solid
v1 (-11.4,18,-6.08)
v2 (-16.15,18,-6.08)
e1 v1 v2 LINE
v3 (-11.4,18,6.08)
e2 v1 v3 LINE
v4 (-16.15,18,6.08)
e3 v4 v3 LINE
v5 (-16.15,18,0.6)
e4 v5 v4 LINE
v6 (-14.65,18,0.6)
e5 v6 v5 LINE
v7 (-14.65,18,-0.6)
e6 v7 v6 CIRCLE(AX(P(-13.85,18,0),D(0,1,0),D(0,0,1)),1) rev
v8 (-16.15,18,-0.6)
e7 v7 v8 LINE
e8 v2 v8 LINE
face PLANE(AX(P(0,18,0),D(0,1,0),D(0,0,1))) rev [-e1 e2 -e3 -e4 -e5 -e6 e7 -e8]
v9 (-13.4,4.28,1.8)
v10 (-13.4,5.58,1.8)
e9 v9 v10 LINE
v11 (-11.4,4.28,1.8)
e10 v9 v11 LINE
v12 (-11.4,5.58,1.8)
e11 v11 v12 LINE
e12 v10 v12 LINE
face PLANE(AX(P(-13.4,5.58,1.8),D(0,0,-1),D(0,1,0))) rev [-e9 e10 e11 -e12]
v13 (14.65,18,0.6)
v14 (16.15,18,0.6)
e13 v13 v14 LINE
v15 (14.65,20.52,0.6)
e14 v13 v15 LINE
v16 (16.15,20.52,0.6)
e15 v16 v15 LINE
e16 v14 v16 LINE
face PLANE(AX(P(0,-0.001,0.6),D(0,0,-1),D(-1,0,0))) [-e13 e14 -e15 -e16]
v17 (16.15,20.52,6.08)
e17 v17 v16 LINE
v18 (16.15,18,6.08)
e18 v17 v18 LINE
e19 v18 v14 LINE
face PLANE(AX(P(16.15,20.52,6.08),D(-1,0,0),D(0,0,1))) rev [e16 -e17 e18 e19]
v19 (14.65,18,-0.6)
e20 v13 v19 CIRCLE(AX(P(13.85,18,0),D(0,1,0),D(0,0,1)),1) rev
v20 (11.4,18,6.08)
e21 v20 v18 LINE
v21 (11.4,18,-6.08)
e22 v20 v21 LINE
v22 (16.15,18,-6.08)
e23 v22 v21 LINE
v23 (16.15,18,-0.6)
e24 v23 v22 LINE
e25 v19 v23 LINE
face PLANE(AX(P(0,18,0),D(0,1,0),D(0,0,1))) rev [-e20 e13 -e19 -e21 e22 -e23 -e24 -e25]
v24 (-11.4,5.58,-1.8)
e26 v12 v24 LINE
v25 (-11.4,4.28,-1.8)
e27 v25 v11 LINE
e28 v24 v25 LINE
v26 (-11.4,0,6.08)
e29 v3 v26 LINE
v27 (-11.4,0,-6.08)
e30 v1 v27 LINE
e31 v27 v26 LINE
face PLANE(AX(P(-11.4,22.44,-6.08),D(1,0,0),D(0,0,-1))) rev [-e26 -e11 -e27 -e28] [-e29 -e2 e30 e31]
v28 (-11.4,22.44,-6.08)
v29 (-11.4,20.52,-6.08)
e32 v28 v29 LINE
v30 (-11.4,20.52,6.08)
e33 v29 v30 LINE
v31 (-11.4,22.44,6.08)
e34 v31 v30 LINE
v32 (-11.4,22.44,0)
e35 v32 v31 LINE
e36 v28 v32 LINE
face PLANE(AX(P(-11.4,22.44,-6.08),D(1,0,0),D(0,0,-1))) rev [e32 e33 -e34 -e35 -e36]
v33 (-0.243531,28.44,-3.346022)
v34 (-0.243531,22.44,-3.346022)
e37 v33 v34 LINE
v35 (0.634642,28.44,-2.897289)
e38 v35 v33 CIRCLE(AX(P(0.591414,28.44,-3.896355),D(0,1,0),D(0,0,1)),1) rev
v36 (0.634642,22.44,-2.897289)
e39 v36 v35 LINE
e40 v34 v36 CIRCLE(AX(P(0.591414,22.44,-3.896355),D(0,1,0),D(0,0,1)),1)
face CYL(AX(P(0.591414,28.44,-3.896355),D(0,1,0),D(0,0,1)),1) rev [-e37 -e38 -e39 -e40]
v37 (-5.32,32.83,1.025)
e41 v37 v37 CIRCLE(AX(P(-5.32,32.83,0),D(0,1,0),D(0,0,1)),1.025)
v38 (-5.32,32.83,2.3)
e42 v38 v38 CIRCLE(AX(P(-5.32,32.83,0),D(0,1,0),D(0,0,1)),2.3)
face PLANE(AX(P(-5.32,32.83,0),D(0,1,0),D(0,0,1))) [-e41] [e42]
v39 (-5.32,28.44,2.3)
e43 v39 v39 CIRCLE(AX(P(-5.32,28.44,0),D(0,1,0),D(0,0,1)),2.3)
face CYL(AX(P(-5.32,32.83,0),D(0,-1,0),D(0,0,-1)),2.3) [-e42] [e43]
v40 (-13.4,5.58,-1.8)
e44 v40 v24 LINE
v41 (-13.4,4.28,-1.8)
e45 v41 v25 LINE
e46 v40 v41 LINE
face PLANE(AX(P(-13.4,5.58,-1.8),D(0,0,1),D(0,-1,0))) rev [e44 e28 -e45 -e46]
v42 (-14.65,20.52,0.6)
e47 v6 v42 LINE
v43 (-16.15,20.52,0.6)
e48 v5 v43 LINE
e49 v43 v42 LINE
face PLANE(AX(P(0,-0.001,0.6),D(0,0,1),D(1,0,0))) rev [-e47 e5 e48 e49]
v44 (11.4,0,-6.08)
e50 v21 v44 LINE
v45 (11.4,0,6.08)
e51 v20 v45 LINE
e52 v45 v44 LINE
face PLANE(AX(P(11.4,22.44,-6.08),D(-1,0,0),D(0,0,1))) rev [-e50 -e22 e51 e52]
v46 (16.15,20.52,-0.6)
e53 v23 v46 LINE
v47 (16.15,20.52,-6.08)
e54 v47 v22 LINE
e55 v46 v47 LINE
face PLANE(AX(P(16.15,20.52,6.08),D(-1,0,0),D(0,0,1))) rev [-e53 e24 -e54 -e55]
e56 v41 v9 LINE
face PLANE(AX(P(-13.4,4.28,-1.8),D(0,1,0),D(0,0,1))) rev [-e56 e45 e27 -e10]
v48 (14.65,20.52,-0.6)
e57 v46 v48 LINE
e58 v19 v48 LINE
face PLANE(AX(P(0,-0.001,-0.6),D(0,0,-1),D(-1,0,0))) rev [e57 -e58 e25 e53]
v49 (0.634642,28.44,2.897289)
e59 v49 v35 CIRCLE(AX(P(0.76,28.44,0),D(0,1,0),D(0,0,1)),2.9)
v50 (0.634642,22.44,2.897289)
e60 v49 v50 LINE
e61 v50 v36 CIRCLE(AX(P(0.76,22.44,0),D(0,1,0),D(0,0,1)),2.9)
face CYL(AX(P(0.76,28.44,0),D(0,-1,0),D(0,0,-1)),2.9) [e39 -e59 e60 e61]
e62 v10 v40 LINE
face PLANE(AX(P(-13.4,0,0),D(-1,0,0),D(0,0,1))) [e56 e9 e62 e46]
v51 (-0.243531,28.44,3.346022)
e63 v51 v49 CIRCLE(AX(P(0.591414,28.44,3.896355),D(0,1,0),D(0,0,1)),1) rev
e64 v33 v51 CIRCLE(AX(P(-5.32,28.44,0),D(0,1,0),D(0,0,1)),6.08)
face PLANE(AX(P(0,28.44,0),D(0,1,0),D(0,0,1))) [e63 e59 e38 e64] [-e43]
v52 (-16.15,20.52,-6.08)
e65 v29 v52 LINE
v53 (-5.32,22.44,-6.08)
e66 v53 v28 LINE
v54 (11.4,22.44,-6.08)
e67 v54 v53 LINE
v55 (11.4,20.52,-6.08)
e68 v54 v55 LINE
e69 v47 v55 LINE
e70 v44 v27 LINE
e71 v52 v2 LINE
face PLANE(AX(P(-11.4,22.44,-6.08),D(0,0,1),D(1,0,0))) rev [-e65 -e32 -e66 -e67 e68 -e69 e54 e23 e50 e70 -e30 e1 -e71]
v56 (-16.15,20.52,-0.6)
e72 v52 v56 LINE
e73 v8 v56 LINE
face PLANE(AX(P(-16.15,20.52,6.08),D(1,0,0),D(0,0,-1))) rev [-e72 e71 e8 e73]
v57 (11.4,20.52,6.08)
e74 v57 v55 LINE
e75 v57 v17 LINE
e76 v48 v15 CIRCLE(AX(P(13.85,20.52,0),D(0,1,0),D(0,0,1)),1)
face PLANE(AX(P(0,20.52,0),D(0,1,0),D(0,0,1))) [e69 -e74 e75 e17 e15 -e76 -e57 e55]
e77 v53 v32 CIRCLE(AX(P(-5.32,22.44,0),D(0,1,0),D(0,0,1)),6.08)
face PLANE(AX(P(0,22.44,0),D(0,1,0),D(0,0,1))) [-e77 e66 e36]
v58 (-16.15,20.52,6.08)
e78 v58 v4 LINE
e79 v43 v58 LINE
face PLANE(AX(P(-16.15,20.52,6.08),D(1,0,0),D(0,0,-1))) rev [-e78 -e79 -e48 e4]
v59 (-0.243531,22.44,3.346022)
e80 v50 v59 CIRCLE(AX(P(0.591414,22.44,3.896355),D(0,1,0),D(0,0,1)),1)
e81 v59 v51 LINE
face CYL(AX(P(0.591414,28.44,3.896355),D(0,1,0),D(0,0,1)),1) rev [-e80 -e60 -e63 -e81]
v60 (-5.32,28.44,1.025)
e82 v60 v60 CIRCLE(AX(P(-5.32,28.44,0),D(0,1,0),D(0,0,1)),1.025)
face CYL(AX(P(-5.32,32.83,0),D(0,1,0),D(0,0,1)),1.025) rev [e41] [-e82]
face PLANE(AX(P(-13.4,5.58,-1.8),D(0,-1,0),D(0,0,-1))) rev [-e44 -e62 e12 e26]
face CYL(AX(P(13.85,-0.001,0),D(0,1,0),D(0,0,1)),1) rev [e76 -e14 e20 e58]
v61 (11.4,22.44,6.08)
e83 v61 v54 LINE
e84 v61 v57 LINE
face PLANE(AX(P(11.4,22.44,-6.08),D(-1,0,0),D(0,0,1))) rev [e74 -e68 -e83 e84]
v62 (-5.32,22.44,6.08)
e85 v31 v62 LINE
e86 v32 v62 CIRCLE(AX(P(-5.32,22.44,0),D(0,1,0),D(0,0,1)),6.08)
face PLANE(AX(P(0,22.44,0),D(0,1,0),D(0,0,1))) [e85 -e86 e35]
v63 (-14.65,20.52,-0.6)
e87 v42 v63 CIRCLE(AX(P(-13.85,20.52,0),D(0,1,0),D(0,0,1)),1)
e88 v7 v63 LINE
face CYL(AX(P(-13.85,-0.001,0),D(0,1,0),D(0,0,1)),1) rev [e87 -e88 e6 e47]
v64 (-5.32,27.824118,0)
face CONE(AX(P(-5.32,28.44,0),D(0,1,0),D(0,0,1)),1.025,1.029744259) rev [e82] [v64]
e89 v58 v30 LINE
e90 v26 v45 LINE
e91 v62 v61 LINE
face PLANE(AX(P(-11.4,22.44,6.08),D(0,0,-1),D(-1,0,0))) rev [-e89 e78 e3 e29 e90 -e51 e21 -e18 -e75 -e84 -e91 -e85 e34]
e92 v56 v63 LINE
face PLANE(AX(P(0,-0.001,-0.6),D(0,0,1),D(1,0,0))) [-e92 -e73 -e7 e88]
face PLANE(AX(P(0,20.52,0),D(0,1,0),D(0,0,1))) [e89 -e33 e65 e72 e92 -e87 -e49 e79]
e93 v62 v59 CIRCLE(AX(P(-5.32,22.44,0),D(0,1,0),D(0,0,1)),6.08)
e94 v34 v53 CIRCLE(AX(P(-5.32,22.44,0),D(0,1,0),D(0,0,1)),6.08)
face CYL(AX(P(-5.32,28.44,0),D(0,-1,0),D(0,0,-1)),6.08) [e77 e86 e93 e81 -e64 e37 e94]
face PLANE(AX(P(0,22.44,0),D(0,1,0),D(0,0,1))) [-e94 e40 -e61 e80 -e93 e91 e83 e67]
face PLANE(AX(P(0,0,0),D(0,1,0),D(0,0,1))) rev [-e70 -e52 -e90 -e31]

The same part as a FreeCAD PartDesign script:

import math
import FreeCAD as App
import Part
import Sketcher
from FreeCAD import Vector


def edges_at(feature, points):
    """Names of the edges that pass closest to the given points."""
    edges = feature.Shape.Edges
    near = lambda p: min(range(len(edges)), key=lambda i: edges[i].distToShape(Part.Vertex(*p))[0])
    return sorted({f"Edge{near(p) + 1}" for p in points})

doc = App.newDocument("Part")
body = doc.addObject("PartDesign::Body", "Body")

# Sketch on XZ plane
sketch1 = body.newObject("Sketcher::SketchObject", "Sketch")
sketch1.AttachmentSupport = (doc.getObject("XZ_Plane"), [""])
sketch1.MapMode = "FlatFace"
sketch1.addGeometry([
    Part.LineSegment(Vector(-11, -6, 0), Vector(-11, 6, 0)),
    Part.LineSegment(Vector(-11, 6, 0), Vector(11, 6, 0)),
    Part.LineSegment(Vector(11, 6, 0), Vector(11, -6, 0)),
    Part.LineSegment(Vector(11, -6, 0), Vector(-11, -6, 0)),
], False)
sketch1.addConstraint([
    Sketcher.Constraint("Coincident", 0, 2, 1, 1),
    Sketcher.Constraint("Coincident", 1, 2, 2, 1),
    Sketcher.Constraint("Coincident", 2, 2, 3, 1),
    Sketcher.Constraint("Coincident", 3, 2, 0, 1),
    Sketcher.Constraint("Vertical", 0),
    Sketcher.Constraint("Horizontal", 1),
    Sketcher.Constraint("Vertical", 2),
    Sketcher.Constraint("Horizontal", 3),
    Sketcher.Constraint("Symmetric", 0, 2, 2, 2, -1, 1),
    Sketcher.Constraint("DistanceX", 1, 1, 1, 2, 22.8),
    Sketcher.Constraint("DistanceY", 0, 1, 0, 2, 12.16),
])
pad1 = body.newObject("PartDesign::Pad", "Pad")
pad1.Profile = sketch1
pad1.Length = 22.44
pad1.Reversed = True

# Sketch on XZ plane
sketch2 = body.newObject("Sketcher::SketchObject", "Sketch001")
sketch2.AttachmentSupport = (doc.getObject("XZ_Plane"), [""])
sketch2.MapMode = "FlatFace"
sketch2.AttachmentOffset = App.Placement(Vector(0, 0, -18), App.Rotation())
sketch2.addGeometry([
    Part.LineSegment(Vector(-16, -6, 0), Vector(-16, 6, 0)),
    Part.LineSegment(Vector(-16, 6, 0), Vector(16, 6, 0)),
    Part.LineSegment(Vector(16, 6, 0), Vector(16, -6, 0)),
    Part.LineSegment(Vector(16, -6, 0), Vector(-16, -6, 0)),
], False)
sketch2.addConstraint([
    Sketcher.Constraint("Coincident", 0, 2, 1, 1),
    Sketcher.Constraint("Coincident", 1, 2, 2, 1),
    Sketcher.Constraint("Coincident", 2, 2, 3, 1),
    Sketcher.Constraint("Coincident", 3, 2, 0, 1),
    Sketcher.Constraint("Vertical", 0),
    Sketcher.Constraint("Horizontal", 1),
    Sketcher.Constraint("Vertical", 2),
    Sketcher.Constraint("Horizontal", 3),
    Sketcher.Constraint("Symmetric", 0, 2, 2, 2, -1, 1),
    Sketcher.Constraint("DistanceX", 1, 1, 1, 2, 32.3),
    Sketcher.Constraint("DistanceY", 0, 1, 0, 2, 12.16),
])
pad2 = body.newObject("PartDesign::Pad", "Pad001")
pad2.Profile = sketch2
pad2.Length = 2.52
pad2.Reversed = True

# Sketch on XZ plane
sketch3 = body.newObject("Sketcher::SketchObject", "Sketch002")
sketch3.AttachmentSupport = (doc.getObject("XZ_Plane"), [""])
sketch3.MapMode = "FlatFace"
sketch3.AttachmentOffset = App.Placement(Vector(0, 0, -22.44), App.Rotation())
sketch3.addGeometry([
    Part.ArcOfCircle(Part.Circle(Vector(0.8, 0, 0), Vector(0, 0, 1), 2.9), math.radians(-104), math.radians(104)),
    Part.ArcOfCircle(Part.Circle(Vector(-5.3, 0, 0), Vector(0, 0, 1), 6.1), math.radians(28), math.radians(332)),
], False)
sketch3.addConstraint([
    Sketcher.Constraint("Coincident", 0, 1, 1, 2),
    Sketcher.Constraint("Coincident", 1, 1, 0, 2),
    Sketcher.Constraint("Symmetric", 0, 1, 1, 1, -1),
    Sketcher.Constraint("Radius", 0, 2.9),
    Sketcher.Constraint("Radius", 1, 6.08),
    Sketcher.Constraint("DistanceX", -1, 1, 0, 3, 0.76),
    Sketcher.Constraint("DistanceX", 1, 3, -1, 1, 5.32),
])
pad3 = body.newObject("PartDesign::Pad", "Pad002")
pad3.Profile = sketch3
pad3.Length = 6
pad3.Reversed = True
doc.recompute()

fillet = body.newObject("PartDesign::Fillet", "Fillet")
fillet.Base = (pad3, edges_at(pad3, [(0.068, 25.44, -2.816), (0.068, 25.44, 2.816)]))
fillet.Radius = 1

# Sketch on XZ plane
sketch4 = body.newObject("Sketcher::SketchObject", "Sketch003")
sketch4.AttachmentSupport = (doc.getObject("XZ_Plane"), [""])
sketch4.MapMode = "FlatFace"
sketch4.AttachmentOffset = App.Placement(Vector(0, 0, -20.52), App.Rotation())
sketch4.addGeometry([
    Part.LineSegment(Vector(-18.4, -0.6, 0), Vector(-18.4, 0.6, 0)),  # 0
    Part.LineSegment(Vector(-18.4, 0.6, 0), Vector(-14.7, 0.6, 0)),  # 1
    Part.ArcOfCircle(Part.Circle(Vector(-13.8, 0, 0), Vector(0, 0, 1), 1), math.radians(0), math.radians(143)),  # 2
    Part.ArcOfCircle(Part.Circle(Vector(-13.8, 0, 0), Vector(0, 0, 1), 1), math.radians(-143), math.radians(0)),  # 3
    Part.LineSegment(Vector(-14.7, -0.6, 0), Vector(-18.4, -0.6, 0)),  # 4
    Part.ArcOfCircle(Part.Circle(Vector(13.8, 0, 0), Vector(0, 0, 1), 1), math.radians(37), math.radians(323)),  # 5
    Part.LineSegment(Vector(14.7, 0.6, 0), Vector(18.4, 0.6, 0)),  # 6
    Part.LineSegment(Vector(18.4, 0.6, 0), Vector(18.4, -0.6, 0)),  # 7
    Part.LineSegment(Vector(18.4, -0.6, 0), Vector(14.7, -0.6, 0)),  # 8
], False)
sketch4.addConstraint([
    Sketcher.Constraint("Coincident", 0, 2, 1, 1),
    Sketcher.Constraint("Coincident", 1, 2, 2, 2),
    Sketcher.Constraint("Tangent", 2, 1, 3, 2),
    Sketcher.Constraint("Coincident", 3, 1, 4, 1),
    Sketcher.Constraint("Coincident", 4, 2, 0, 1),
    Sketcher.Constraint("Coincident", 5, 1, 6, 1),
    Sketcher.Constraint("Coincident", 6, 2, 7, 1),
    Sketcher.Constraint("Coincident", 7, 2, 8, 1),
    Sketcher.Constraint("Coincident", 8, 2, 5, 2),
    Sketcher.Constraint("Vertical", 0),
    Sketcher.Constraint("Horizontal", 1),
    Sketcher.Constraint("Horizontal", 4),
    Sketcher.Constraint("Horizontal", 6),
    Sketcher.Constraint("Vertical", 7),
    Sketcher.Constraint("Horizontal", 8),
    Sketcher.Constraint("Equal", 2, 3),
    Sketcher.Constraint("Equal", 3, 5),
    Sketcher.Constraint("Symmetric", 2, 3, 5, 3, -1, 1),
    Sketcher.Constraint("Symmetric", 4, 2, 6, 2, -1, 1),
    Sketcher.Constraint("Symmetric", 1, 2, 5, 1, -2),
    Sketcher.Constraint("PointOnObject", 2, 1, -1),
    Sketcher.Constraint("Horizontal", 4, 2, 7, 2),
    Sketcher.Constraint("Radius", 2, 1.0),
    Sketcher.Constraint("DistanceX", 1, 1, 1, 2, 3.8),
    Sketcher.Constraint("DistanceY", 0, 1, 0, 2, 1.2),
    Sketcher.Constraint("DistanceX", 2, 3, 5, 3, 27.7),
])
pocket1 = body.newObject("PartDesign::Pocket", "Pocket")
pocket1.Profile = sketch4
pocket1.Length = 2.52
pocket1.Reversed = True

# Sketch on XZ plane
sketch5 = body.newObject("Sketcher::SketchObject", "Sketch004")
sketch5.AttachmentSupport = (doc.getObject("XZ_Plane"), [""])
sketch5.MapMode = "FlatFace"
sketch5.AttachmentOffset = App.Placement(Vector(0, 0, -28.44), App.Rotation())
sketch5.addGeometry(Part.Circle(Vector(-5.3, 0, 0), Vector(0, 0, 1), 2.3), False)
sketch5.addConstraint([
    Sketcher.Constraint("PointOnObject", 0, 3, -1),
    Sketcher.Constraint("Diameter", 0, 4.6),
    Sketcher.Constraint("DistanceX", 0, 3, -1, 1, 5.32),
])
pad4 = body.newObject("PartDesign::Pad", "Pad003")
pad4.Profile = sketch5
pad4.Length = 4.39
pad4.Reversed = True

# Sketch on XZ plane
sketch6 = body.newObject("Sketcher::SketchObject", "Sketch005")
sketch6.AttachmentSupport = (doc.getObject("XZ_Plane"), [""])
sketch6.MapMode = "FlatFace"
sketch6.AttachmentOffset = App.Placement(Vector(0, 0, -32.83), App.Rotation())
sketch6.addGeometry(Part.Circle(Vector(-5.3, 0, 0), Vector(0, 0, 1), 1), False)
sketch6.addConstraint([
    Sketcher.Constraint("PointOnObject", 0, 3, -1),
    Sketcher.Constraint("Diameter", 0, 2.05),
    Sketcher.Constraint("DistanceX", 0, 3, -1, 1, 5.32),
])
doc.recompute()
hole = body.newObject("PartDesign::Hole", "Hole")
hole.Profile = sketch6
hole.ThreadType = "None"
hole.Diameter = 2.05
hole.DepthType = "Dimension"
hole.Depth = 4.39
hole.DrillPoint = "Angled"
hole.DrillPointAngle = 118
hole.Reversed = True

# Sketch on YZ plane
sketch7 = body.newObject("Sketcher::SketchObject", "Sketch006")
sketch7.AttachmentSupport = (doc.getObject("YZ_Plane"), [""])
sketch7.MapMode = "FlatFace"
sketch7.AttachmentOffset = App.Placement(Vector(0, 0, -11.4), App.Rotation())
sketch7.addGeometry([
    Part.LineSegment(Vector(5.6, -1.8, 0), Vector(4.3, -1.8, 0)),
    Part.LineSegment(Vector(4.3, -1.8, 0), Vector(4.3, 1.8, 0)),
    Part.LineSegment(Vector(4.3, 1.8, 0), Vector(5.6, 1.8, 0)),
    Part.LineSegment(Vector(5.6, 1.8, 0), Vector(5.6, -1.8, 0)),
], False)
sketch7.addConstraint([
    Sketcher.Constraint("Coincident", 0, 2, 1, 1),
    Sketcher.Constraint("Coincident", 1, 2, 2, 1),
    Sketcher.Constraint("Coincident", 2, 2, 3, 1),
    Sketcher.Constraint("Coincident", 3, 2, 0, 1),
    Sketcher.Constraint("Horizontal", 0),
    Sketcher.Constraint("Vertical", 1),
    Sketcher.Constraint("Horizontal", 2),
    Sketcher.Constraint("Vertical", 3),
    Sketcher.Constraint("DistanceX", 0, 2, 0, 1, 1.3),
    Sketcher.Constraint("DistanceY", 1, 1, 1, 2, 3.6),
    Sketcher.Constraint("DistanceY", 0, 2, -1, 1, 1.8),
    Sketcher.Constraint("DistanceX", -1, 1, 0, 2, 4.28),
])
pad5 = body.newObject("PartDesign::Pad", "Pad004")
pad5.Profile = sketch7
pad5.Length = 2
pad5.Reversed = True

doc.recompute()
